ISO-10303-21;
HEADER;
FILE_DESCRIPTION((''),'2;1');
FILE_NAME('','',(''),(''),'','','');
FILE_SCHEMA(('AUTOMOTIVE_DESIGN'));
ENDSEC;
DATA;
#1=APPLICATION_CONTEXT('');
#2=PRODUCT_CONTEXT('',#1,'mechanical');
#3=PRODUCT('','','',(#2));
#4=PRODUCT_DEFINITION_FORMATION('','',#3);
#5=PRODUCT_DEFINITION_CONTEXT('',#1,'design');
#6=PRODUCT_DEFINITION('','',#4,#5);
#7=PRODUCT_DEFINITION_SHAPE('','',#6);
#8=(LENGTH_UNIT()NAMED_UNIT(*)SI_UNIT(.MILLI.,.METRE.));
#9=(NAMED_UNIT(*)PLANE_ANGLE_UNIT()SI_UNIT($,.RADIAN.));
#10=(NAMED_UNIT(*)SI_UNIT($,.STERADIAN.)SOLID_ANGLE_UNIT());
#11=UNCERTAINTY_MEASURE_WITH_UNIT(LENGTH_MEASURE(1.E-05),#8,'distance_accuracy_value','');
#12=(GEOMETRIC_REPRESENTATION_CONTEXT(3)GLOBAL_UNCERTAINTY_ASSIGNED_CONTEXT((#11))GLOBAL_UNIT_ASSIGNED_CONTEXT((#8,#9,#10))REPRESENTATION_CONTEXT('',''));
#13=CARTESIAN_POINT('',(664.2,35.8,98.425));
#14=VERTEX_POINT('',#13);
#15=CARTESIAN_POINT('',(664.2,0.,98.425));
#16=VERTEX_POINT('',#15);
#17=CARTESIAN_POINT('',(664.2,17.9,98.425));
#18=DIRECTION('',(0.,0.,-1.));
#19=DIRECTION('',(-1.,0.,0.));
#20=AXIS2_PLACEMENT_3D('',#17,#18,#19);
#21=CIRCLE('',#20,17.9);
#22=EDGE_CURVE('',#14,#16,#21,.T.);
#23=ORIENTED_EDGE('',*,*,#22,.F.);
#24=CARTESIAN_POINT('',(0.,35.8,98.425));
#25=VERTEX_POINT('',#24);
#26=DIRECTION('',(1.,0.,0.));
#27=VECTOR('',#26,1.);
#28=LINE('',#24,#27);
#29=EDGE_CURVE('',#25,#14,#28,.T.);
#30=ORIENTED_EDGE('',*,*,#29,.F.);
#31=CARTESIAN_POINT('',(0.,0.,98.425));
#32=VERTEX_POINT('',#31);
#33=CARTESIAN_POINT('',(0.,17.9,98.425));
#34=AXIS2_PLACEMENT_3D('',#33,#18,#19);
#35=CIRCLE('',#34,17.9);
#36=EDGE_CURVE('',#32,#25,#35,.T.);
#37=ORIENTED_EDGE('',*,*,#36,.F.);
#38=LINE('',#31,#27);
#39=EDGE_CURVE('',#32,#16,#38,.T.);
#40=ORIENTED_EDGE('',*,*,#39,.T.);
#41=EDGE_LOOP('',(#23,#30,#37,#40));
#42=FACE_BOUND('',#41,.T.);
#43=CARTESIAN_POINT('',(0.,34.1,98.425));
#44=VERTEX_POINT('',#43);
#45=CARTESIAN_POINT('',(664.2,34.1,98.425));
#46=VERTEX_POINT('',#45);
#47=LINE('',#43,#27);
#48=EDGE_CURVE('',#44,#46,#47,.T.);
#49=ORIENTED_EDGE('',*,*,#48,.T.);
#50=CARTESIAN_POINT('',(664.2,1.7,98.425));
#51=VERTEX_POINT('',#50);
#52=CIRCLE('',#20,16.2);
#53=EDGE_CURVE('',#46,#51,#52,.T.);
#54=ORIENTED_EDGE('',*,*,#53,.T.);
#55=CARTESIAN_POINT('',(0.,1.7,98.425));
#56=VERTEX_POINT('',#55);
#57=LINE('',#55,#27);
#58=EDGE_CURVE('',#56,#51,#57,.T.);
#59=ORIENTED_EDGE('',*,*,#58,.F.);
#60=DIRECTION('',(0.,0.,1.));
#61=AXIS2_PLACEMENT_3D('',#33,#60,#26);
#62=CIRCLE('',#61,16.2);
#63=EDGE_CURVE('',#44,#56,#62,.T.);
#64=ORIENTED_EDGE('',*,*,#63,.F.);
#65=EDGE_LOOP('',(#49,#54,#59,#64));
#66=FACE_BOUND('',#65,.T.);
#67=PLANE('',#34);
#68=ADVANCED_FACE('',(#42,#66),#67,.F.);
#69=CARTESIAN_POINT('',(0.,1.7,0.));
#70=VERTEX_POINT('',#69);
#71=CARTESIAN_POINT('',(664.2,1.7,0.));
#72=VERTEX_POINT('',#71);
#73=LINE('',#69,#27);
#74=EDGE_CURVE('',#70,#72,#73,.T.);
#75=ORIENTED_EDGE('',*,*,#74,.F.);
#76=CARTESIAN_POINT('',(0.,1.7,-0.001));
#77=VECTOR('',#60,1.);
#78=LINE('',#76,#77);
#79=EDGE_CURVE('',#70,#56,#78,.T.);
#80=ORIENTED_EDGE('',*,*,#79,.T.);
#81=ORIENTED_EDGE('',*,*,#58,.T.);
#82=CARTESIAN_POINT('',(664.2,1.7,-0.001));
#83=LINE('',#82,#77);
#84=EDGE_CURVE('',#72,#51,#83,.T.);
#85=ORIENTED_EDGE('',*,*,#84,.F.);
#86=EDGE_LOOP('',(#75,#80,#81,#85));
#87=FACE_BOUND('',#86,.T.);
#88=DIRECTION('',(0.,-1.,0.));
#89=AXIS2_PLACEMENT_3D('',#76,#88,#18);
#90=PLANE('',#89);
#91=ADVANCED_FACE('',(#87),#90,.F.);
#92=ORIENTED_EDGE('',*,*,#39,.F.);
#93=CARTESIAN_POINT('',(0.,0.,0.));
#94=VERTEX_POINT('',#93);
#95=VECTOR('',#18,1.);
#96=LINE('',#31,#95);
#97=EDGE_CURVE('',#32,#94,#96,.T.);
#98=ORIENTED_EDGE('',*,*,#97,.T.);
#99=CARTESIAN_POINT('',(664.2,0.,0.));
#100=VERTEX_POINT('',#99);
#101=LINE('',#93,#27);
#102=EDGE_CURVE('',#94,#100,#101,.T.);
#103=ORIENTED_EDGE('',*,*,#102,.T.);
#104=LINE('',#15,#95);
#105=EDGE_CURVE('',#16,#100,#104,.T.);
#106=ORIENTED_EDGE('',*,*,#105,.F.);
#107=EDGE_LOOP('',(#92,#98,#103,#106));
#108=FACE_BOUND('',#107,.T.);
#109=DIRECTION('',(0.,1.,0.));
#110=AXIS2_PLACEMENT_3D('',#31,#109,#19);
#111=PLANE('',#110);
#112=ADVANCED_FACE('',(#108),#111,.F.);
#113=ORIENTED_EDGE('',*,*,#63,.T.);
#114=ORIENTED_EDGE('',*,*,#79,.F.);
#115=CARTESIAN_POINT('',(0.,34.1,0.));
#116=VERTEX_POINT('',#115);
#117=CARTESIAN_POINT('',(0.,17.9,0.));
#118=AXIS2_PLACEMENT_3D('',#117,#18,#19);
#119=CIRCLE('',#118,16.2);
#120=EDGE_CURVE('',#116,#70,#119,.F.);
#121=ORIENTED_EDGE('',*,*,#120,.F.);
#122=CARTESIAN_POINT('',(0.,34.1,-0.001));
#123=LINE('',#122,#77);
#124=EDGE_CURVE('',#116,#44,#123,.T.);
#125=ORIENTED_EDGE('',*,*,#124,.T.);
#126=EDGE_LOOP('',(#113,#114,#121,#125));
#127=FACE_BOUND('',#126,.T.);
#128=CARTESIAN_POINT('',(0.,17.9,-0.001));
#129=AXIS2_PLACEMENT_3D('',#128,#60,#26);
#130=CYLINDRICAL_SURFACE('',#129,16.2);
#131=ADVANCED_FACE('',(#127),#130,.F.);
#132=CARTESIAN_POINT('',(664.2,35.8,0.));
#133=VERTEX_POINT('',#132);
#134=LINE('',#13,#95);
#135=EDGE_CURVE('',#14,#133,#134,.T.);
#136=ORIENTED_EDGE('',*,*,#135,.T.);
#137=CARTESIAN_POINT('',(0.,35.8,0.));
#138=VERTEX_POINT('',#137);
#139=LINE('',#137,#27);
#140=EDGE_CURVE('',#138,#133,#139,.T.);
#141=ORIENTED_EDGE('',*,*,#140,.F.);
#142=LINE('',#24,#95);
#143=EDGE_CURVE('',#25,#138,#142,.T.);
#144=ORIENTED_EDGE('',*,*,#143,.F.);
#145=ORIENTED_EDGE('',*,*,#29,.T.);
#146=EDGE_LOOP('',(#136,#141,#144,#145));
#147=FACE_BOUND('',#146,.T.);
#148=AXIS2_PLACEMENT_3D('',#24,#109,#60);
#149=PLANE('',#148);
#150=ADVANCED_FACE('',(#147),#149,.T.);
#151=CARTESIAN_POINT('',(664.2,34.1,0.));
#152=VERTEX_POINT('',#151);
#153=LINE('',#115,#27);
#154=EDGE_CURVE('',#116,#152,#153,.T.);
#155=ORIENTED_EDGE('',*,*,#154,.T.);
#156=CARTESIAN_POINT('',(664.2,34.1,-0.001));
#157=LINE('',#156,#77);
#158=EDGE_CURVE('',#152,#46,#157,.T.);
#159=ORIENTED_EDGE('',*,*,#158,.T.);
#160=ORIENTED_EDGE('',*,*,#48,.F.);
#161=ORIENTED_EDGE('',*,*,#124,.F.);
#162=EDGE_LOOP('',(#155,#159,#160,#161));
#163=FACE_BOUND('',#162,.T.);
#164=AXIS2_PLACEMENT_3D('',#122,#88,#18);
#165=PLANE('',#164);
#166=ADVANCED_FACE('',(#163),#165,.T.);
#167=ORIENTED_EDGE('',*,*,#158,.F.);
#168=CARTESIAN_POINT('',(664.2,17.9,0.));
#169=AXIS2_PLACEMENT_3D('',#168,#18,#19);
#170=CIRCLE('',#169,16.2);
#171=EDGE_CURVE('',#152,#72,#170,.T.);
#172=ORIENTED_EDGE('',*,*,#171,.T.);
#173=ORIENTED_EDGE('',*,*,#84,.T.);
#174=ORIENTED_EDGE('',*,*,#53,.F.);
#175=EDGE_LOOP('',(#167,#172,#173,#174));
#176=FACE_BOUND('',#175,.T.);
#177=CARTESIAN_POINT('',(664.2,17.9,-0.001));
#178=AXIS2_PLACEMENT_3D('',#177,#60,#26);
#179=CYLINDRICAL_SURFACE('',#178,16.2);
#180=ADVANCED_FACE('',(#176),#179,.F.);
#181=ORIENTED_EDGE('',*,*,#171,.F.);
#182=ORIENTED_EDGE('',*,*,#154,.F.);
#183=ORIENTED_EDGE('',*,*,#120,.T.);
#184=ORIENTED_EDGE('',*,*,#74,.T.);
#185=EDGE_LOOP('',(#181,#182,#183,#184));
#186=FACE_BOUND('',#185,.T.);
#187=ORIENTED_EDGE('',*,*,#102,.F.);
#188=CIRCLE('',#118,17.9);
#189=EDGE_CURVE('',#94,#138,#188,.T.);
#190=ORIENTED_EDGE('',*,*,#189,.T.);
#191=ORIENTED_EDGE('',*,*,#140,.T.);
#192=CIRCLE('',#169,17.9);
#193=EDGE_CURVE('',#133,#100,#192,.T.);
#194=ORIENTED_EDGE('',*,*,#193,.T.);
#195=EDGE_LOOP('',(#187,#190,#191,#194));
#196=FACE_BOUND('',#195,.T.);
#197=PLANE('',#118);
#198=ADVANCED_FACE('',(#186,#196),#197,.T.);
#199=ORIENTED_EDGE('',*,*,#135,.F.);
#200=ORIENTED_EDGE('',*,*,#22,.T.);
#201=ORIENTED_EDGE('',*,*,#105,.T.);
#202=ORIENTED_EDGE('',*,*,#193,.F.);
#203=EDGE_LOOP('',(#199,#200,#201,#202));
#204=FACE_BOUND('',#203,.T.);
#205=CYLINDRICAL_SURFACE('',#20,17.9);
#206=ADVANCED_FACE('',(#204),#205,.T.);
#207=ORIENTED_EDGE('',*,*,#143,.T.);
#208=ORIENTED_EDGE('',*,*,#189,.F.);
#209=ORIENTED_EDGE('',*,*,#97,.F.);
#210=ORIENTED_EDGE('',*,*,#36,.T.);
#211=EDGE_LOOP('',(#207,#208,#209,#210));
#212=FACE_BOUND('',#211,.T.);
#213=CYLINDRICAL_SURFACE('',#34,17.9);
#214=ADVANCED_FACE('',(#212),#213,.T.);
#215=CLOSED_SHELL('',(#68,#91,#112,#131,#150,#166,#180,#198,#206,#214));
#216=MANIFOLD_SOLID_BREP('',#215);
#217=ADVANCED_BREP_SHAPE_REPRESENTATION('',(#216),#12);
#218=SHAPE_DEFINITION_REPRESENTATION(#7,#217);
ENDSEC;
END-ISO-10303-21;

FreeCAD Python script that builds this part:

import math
import FreeCAD as App
import Part
import Sketcher

V = App.Vector
Q = App.Units.Quantity

doc = App.newDocument("Part")
params = doc.addObject("Spreadsheet::Sheet", "Params")
for row, (alias, value) in enumerate([
    ("sketch1_radius", "17.9 mm"),
    ("sketch1_width", "664.2 mm"),
    ("pad1_length", "98.425 mm"),
    ("sketch2_radius", "16.2 mm"),
    ("sketch2_width", "664.2 mm"),
], start=1):
    params.set(f"A{row}", alias)
    params.set(f"B{row}", "=" + value)
    params.setAlias(f"B{row}", alias)

body = doc.addObject("PartDesign::Body", "Body")

sketch1 = body.newObject("Sketcher::SketchObject", "Sketch")
sketch1.AttachmentSupport = (doc.getObject("XY_Plane"), [""])
sketch1.MapMode = "FlatFace"
sketch1.addGeometry(Part.LineSegment(V(664, 36, 0), V(0, 36, 0)), False)
sketch1.addGeometry(Part.ArcOfCircle(Part.Circle(V(0, 18, 0), V(0, 0, 1), 18), math.radians(90), math.radians(270)), False)
sketch1.addGeometry(Part.LineSegment(V(0, 0, 0), V(664, 0, 0)), False)
sketch1.addGeometry(Part.ArcOfCircle(Part.Circle(V(664, 18, 0), V(0, 0, 1), 18), math.radians(-90), math.radians(90)), False)
sketch1.addConstraint(Sketcher.Constraint("Tangent", 0, 2, 1, 1))
sketch1.addConstraint(Sketcher.Constraint("Tangent", 1, 2, 2, 1))
sketch1.addConstraint(Sketcher.Constraint("Tangent", 2, 2, 3, 1))
sketch1.addConstraint(Sketcher.Constraint("Tangent", 3, 2, 0, 1))
sketch1.addConstraint(Sketcher.Constraint("Horizontal", 0))
sketch1.addConstraint(Sketcher.Constraint("Horizontal", 2))
sketch1.addConstraint(Sketcher.Constraint("Coincident", 1, 2, -1, 1))
sketch1.addConstraint(Sketcher.Constraint("Radius", 1, Q("17.9 mm")))
sketch1.addConstraint(Sketcher.Constraint("DistanceX", 0, 2, 0, 1, Q("664.2 mm")))
sketch1.setExpression("Constraints[7]", "Params.sketch1_radius")
sketch1.setExpression("Constraints[8]", "Params.sketch1_width")
pad1 = body.newObject("PartDesign::Pad", "Pad")
pad1.Profile = sketch1
pad1.setExpression("Length", "Params.pad1_length")

sketch2 = body.newObject("Sketcher::SketchObject", "Sketch001")
sketch2.AttachmentSupport = (doc.getObject("XY_Plane"), [""])
sketch2.MapMode = "FlatFace"
sketch2.AttachmentOffset = App.Placement(V(0, 0, 98.425), App.Rotation())
sketch2.addGeometry(Part.LineSegment(V(664, 34, 0), V(0, 34, 0)), False)
sketch2.addGeometry(Part.ArcOfCircle(Part.Circle(V(0, 18, 0), V(0, 0, 1), 16), math.radians(90), math.radians(270)), False)
sketch2.addGeometry(Part.LineSegment(V(0, 2, 0), V(664, 2, 0)), False)
sketch2.addGeometry(Part.ArcOfCircle(Part.Circle(V(664, 18, 0), V(0, 0, 1), 16), math.radians(-90), math.radians(90)), False)
sketch2.addConstraint(Sketcher.Constraint("Tangent", 0, 2, 1, 1))
sketch2.addConstraint(Sketcher.Constraint("Tangent", 1, 2, 2, 1))
sketch2.addConstraint(Sketcher.Constraint("Tangent", 2, 2, 3, 1))
sketch2.addConstraint(Sketcher.Constraint("Tangent", 3, 2, 0, 1))
sketch2.addConstraint(Sketcher.Constraint("Horizontal", 0))
sketch2.addConstraint(Sketcher.Constraint("Horizontal", 2))
sketch2.addConstraint(Sketcher.Constraint("PointOnObject", 1, 3, -2))
sketch2.addConstraint(Sketcher.Constraint("Radius", 1, Q("16.2 mm")))
sketch2.addConstraint(Sketcher.Constraint("DistanceX", 0, 2, 0, 1, Q("664.2 mm")))
sketch2.addConstraint(Sketcher.Constraint("DistanceY", -1, 1, 1, 3, Q("17.9 mm")))
sketch2.setExpression("Constraints[7]", "Params.sketch2_radius")
sketch2.setExpression("Constraints[8]", "Params.sketch2_width")
pocket1 = body.newObject("PartDesign::Pocket", "Pocket")
pocket1.Profile = sketch2
pocket1.Type = "UpToFirst"

doc.recompute()
